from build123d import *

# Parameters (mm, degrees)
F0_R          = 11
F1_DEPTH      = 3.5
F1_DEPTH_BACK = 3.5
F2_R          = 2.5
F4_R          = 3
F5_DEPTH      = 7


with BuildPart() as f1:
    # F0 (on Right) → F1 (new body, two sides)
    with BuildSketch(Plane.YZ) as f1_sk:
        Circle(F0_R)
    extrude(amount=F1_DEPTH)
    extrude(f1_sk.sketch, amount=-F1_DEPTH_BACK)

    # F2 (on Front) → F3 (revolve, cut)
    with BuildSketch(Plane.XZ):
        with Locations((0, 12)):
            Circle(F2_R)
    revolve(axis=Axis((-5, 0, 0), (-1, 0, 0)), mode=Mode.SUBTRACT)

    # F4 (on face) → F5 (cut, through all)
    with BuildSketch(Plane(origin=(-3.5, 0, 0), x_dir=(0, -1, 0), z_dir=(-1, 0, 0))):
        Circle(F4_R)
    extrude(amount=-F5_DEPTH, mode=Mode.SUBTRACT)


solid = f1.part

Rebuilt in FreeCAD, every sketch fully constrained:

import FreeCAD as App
import Part
import Sketcher
Q = App.Units.Quantity

doc = App.newDocument("Part")
body = doc.addObject("PartDesign::Body", "Body")

# Sketch on YZ plane
sketch1 = body.newObject("Sketcher::SketchObject", "Sketch")
sketch1.AttachmentSupport = (doc.getObject("YZ_Plane"), [""])
sketch1.MapMode = "FlatFace"
sketch1.addGeometry(Part.Circle(App.Vector(0, 0, 0), App.Vector(0, 0, 1), 11), False)
sketch1.addConstraint([
    Sketcher.Constraint("Coincident", 0, 3, -1, 1),
    Sketcher.Constraint("Diameter", 0, Q("22 mm")),
])
pad1 = body.newObject("PartDesign::Pad", "Pad")
pad1.Profile = sketch1
pad1.Type = "TwoLengths"
pad1.Length = 3.5
pad1.Length2 = 3.5

# Sketch on XZ plane
sketch2 = body.newObject("Sketcher::SketchObject", "Sketch001")
sketch2.AttachmentSupport = (doc.getObject("XZ_Plane"), [""])
sketch2.MapMode = "FlatFace"
sketch2.addGeometry(Part.Circle(App.Vector(0, 12, 0), App.Vector(0, 0, 1), 2.5), False)
sketch2.addConstraint([
    Sketcher.Constraint("PointOnObject", 0, 3, -2),
    Sketcher.Constraint("Diameter", 0, Q("5 mm")),
    Sketcher.Constraint("DistanceY", -1, 1, 0, 3, Q("12 mm")),
])
groove = body.newObject("PartDesign::Groove", "Groove")
groove.Profile = sketch2
groove.ReferenceAxis = (sketch2, ["H_Axis"])
groove.Angle = 360

# Sketch on YZ plane
sketch3 = body.newObject("Sketcher::SketchObject", "Sketch002")
sketch3.AttachmentSupport = (doc.getObject("YZ_Plane"), [""])
sketch3.MapMode = "FlatFace"
sketch3.AttachmentOffset = App.Placement(App.Vector(0, 0, -3.5), App.Rotation())
sketch3.addGeometry(Part.Circle(App.Vector(0, 0, 0), App.Vector(0, 0, 1), 3), False)
sketch3.addConstraint([
    Sketcher.Constraint("Coincident", 0, 3, -1, 1),
    Sketcher.Constraint("Diameter", 0, Q("6 mm")),
])
pocket1 = body.newObject("PartDesign::Pocket", "Pocket")
pocket1.Profile = sketch3
pocket1.Type = "ThroughAll"
pocket1.Reversed = True

doc.recompute()
